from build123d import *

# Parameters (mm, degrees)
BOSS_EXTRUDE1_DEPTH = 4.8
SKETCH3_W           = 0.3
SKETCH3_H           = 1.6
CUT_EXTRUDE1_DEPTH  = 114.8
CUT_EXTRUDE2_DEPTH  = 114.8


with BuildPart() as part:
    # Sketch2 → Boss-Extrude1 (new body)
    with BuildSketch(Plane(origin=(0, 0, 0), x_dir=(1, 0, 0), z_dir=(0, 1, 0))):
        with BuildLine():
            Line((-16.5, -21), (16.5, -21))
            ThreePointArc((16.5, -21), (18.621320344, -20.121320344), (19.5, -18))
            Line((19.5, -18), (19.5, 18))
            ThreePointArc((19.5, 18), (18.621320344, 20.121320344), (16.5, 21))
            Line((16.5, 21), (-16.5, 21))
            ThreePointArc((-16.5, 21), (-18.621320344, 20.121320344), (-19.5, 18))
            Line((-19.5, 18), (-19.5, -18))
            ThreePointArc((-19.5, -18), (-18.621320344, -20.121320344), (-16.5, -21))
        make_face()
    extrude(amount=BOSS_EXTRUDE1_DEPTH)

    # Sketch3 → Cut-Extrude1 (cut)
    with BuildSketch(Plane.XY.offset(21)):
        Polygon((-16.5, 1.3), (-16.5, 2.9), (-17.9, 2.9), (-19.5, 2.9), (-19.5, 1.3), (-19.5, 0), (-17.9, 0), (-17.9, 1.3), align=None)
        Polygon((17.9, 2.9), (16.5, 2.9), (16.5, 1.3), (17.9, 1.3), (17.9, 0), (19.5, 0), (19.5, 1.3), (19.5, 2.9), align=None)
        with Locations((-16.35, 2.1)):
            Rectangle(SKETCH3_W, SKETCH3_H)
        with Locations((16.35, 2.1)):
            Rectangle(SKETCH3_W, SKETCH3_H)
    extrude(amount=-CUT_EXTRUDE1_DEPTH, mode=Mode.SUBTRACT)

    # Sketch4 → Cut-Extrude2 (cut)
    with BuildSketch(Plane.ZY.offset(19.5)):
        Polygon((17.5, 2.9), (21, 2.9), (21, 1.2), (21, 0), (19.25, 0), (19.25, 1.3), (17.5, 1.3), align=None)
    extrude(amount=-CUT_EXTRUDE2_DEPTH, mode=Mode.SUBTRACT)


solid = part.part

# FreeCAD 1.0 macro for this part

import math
import FreeCAD as App
import Part
import Sketcher
Q = App.Units.Quantity


def add_polygon(sketch, points):
    """Adds a closed chain of lines whose ends are joined by coincident constraints."""
    first, n = sketch.GeometryCount, len(points)
    for a, b in zip(points, points[1:] + points[:1]):
        sketch.addGeometry(Part.LineSegment(App.Vector(*a, 0), App.Vector(*b, 0)), False)
    for i in range(n):
        sketch.addConstraint(Sketcher.Constraint("Coincident", first + i, 2, first + (i + 1) % n, 1))

doc = App.newDocument("Part")
body = doc.addObject("PartDesign::Body", "Body")

# Sketch on XZ plane
sketch1 = body.newObject("Sketcher::SketchObject", "Sketch")
sketch1.AttachmentSupport = (doc.getObject("XZ_Plane"), [""])
sketch1.MapMode = "FlatFace"
sketch1.addGeometry(Part.LineSegment(App.Vector(-16.5, 21, 0), App.Vector(16.5, 21, 0)), False)
sketch1.addGeometry(Part.ArcOfCircle(Part.Circle(App.Vector(16.5, 18, 0), App.Vector(0, 0, 1), 3), math.radians(0), math.radians(90)), False)
sketch1.addGeometry(Part.LineSegment(App.Vector(19.5, 18, 0), App.Vector(19.5, -18, 0)), False)
sketch1.addGeometry(Part.ArcOfCircle(Part.Circle(App.Vector(16.5, -18, 0), App.Vector(0, 0, 1), 3), math.radians(-90), math.radians(0)), False)
sketch1.addGeometry(Part.LineSegment(App.Vector(16.5, -21, 0), App.Vector(-16.5, -21, 0)), False)
sketch1.addGeometry(Part.ArcOfCircle(Part.Circle(App.Vector(-16.5, -18, 0), App.Vector(0, 0, 1), 3), math.radians(180), math.radians(270)), False)
sketch1.addGeometry(Part.LineSegment(App.Vector(-19.5, -18, 0), App.Vector(-19.5, 18, 0)), False)
sketch1.addGeometry(Part.ArcOfCircle(Part.Circle(App.Vector(-16.5, 18, 0), App.Vector(0, 0, 1), 3), math.radians(90), math.radians(180)), False)
sketch1.addConstraint(Sketcher.Constraint("Tangent", 0, 2, 1, 2))
sketch1.addConstraint(Sketcher.Constraint("Tangent", 1, 1, 2, 1))
sketch1.addConstraint(Sketcher.Constraint("Tangent", 2, 2, 3, 2))
sketch1.addConstraint(Sketcher.Constraint("Tangent", 3, 1, 4, 1))
sketch1.addConstraint(Sketcher.Constraint("Tangent", 4, 2, 5, 2))
sketch1.addConstraint(Sketcher.Constraint("Tangent", 5, 1, 6, 1))
sketch1.addConstraint(Sketcher.Constraint("Tangent", 6, 2, 7, 2))
sketch1.addConstraint(Sketcher.Constraint("Tangent", 7, 1, 0, 1))
sketch1.addConstraint(Sketcher.Constraint("Horizontal", 0))
sketch1.addConstraint(Sketcher.Constraint("Vertical", 2))
sketch1.addConstraint(Sketcher.Constraint("Horizontal", 4))
sketch1.addConstraint(Sketcher.Constraint("Vertical", 6))
sketch1.addConstraint(Sketcher.Constraint("Equal", 1, 3))
sketch1.addConstraint(Sketcher.Constraint("Equal", 3, 5))
sketch1.addConstraint(Sketcher.Constraint("Equal", 5, 7))
sketch1.addConstraint(Sketcher.Constraint("Symmetric", 1, 3, 5, 3, -1, 1))
sketch1.addConstraint(Sketcher.Constraint("Radius", 1, Q("3 mm")))
sketch1.addConstraint(Sketcher.Constraint("DistanceX", 0, 1, 0, 2, Q("33 mm")))
sketch1.addConstraint(Sketcher.Constraint("DistanceY", 2, 2, 2, 1, Q("36 mm")))
pad1 = body.newObject("PartDesign::Pad", "Pad")
pad1.Profile = sketch1
pad1.Length = 4.8
pad1.Reversed = True

# Sketch on XY plane
sketch2 = body.newObject("Sketcher::SketchObject", "Sketch001")
sketch2.AttachmentSupport = (doc.getObject("XY_Plane"), [""])
sketch2.MapMode = "FlatFace"
sketch2.AttachmentOffset = App.Placement(App.Vector(0, 0, 21), App.Rotation())
add_polygon(sketch2, [(-19.5, 2.9), (-19.5, 0), (-17.9, 0), (-17.9, 1.3), (-16.2, 1.3), (-16.2, 2.9)])  # lines 0-5
add_polygon(sketch2, [(17.9, 1.3), (17.9, 0), (19.5, 0), (19.5, 2.9), (16.2, 2.9), (16.2, 1.3)])  # lines 6-11
sketch2.addConstraint(Sketcher.Constraint("Vertical", 0))
sketch2.addConstraint(Sketcher.Constraint("Horizontal", 1))
sketch2.addConstraint(Sketcher.Constraint("Vertical", 2))
sketch2.addConstraint(Sketcher.Constraint("Horizontal", 3))
sketch2.addConstraint(Sketcher.Constraint("Vertical", 4))
sketch2.addConstraint(Sketcher.Constraint("Horizontal", 5))
sketch2.addConstraint(Sketcher.Constraint("Vertical", 6))
sketch2.addConstraint(Sketcher.Constraint("Horizontal", 7))
sketch2.addConstraint(Sketcher.Constraint("Vertical", 8))
sketch2.addConstraint(Sketcher.Constraint("Horizontal", 9))
sketch2.addConstraint(Sketcher.Constraint("Vertical", 10))
sketch2.addConstraint(Sketcher.Constraint("Horizontal", 11))
sketch2.addConstraint(Sketcher.Constraint("Symmetric", 1, 2, 6, 2, -1, 1))
sketch2.addConstraint(Sketcher.Constraint("Symmetric", 0, 2, 7, 2, -2))
sketch2.addConstraint(Sketcher.Constraint("Symmetric", 4, 2, 9, 2, -2))
sketch2.addConstraint(Sketcher.Constraint("Horizontal", 3, 2, 10, 2))
sketch2.addConstraint(Sketcher.Constraint("Equal", 7, 4))
sketch2.addConstraint(Sketcher.Constraint("DistanceX", 1, 1, 1, 2, Q("1.6 mm")))
sketch2.addConstraint(Sketcher.Constraint("DistanceX", 3, 1, 3, 2, Q("1.7 mm")))
sketch2.addConstraint(Sketcher.Constraint("DistanceY", 0, 2, 0, 1, Q("2.9 mm")))
sketch2.addConstraint(Sketcher.Constraint("DistanceX", 0, 2, -1, 1, Q("19.5 mm")))
pocket1 = body.newObject("PartDesign::Pocket", "Pocket")
pocket1.Profile = sketch2
pocket1.Length = 114.8

# Sketch on YZ plane
sketch3 = body.newObject("Sketcher::SketchObject", "Sketch002")
sketch3.AttachmentSupport = (doc.getObject("YZ_Plane"), [""])
sketch3.MapMode = "FlatFace"
sketch3.AttachmentOffset = App.Placement(App.Vector(0, 0, -19.5), App.Rotation())
add_polygon(sketch3, [(2.9, 21), (2.9, 17.5), (1.3, 17.5), (1.3, 19.25), (0, 19.25), (0, 21)])  # lines 0-5
sketch3.addConstraint(Sketcher.Constraint("Vertical", 0))
sketch3.addConstraint(Sketcher.Constraint("Horizontal", 1))
sketch3.addConstraint(Sketcher.Constraint("Vertical", 2))
sketch3.addConstraint(Sketcher.Constraint("Horizontal", 3))
sketch3.addConstraint(Sketcher.Constraint("Vertical", 4))
sketch3.addConstraint(Sketcher.Constraint("Horizontal", 5))
sketch3.addConstraint(Sketcher.Constraint("PointOnObject", 3, 2, -2))
sketch3.addConstraint(Sketcher.Constraint("Equal", 2, 4))
sketch3.addConstraint(Sketcher.Constraint("DistanceX", 1, 2, 1, 1, Q("1.6 mm")))
sketch3.addConstraint(Sketcher.Constraint("DistanceX", 3, 2, 3, 1, Q("1.3 mm")))
sketch3.addConstraint(Sketcher.Constraint("DistanceY", 0, 2, 0, 1, Q("3.5 mm")))
sketch3.addConstraint(Sketcher.Constraint("DistanceY", -1, 1, 4, 2, Q("21 mm")))
pocket2 = body.newObject("PartDesign::Pocket", "Pocket001")
pocket2.Profile = sketch3
pocket2.Length = 114.8
pocket2.Reversed = True

doc.recompute()
